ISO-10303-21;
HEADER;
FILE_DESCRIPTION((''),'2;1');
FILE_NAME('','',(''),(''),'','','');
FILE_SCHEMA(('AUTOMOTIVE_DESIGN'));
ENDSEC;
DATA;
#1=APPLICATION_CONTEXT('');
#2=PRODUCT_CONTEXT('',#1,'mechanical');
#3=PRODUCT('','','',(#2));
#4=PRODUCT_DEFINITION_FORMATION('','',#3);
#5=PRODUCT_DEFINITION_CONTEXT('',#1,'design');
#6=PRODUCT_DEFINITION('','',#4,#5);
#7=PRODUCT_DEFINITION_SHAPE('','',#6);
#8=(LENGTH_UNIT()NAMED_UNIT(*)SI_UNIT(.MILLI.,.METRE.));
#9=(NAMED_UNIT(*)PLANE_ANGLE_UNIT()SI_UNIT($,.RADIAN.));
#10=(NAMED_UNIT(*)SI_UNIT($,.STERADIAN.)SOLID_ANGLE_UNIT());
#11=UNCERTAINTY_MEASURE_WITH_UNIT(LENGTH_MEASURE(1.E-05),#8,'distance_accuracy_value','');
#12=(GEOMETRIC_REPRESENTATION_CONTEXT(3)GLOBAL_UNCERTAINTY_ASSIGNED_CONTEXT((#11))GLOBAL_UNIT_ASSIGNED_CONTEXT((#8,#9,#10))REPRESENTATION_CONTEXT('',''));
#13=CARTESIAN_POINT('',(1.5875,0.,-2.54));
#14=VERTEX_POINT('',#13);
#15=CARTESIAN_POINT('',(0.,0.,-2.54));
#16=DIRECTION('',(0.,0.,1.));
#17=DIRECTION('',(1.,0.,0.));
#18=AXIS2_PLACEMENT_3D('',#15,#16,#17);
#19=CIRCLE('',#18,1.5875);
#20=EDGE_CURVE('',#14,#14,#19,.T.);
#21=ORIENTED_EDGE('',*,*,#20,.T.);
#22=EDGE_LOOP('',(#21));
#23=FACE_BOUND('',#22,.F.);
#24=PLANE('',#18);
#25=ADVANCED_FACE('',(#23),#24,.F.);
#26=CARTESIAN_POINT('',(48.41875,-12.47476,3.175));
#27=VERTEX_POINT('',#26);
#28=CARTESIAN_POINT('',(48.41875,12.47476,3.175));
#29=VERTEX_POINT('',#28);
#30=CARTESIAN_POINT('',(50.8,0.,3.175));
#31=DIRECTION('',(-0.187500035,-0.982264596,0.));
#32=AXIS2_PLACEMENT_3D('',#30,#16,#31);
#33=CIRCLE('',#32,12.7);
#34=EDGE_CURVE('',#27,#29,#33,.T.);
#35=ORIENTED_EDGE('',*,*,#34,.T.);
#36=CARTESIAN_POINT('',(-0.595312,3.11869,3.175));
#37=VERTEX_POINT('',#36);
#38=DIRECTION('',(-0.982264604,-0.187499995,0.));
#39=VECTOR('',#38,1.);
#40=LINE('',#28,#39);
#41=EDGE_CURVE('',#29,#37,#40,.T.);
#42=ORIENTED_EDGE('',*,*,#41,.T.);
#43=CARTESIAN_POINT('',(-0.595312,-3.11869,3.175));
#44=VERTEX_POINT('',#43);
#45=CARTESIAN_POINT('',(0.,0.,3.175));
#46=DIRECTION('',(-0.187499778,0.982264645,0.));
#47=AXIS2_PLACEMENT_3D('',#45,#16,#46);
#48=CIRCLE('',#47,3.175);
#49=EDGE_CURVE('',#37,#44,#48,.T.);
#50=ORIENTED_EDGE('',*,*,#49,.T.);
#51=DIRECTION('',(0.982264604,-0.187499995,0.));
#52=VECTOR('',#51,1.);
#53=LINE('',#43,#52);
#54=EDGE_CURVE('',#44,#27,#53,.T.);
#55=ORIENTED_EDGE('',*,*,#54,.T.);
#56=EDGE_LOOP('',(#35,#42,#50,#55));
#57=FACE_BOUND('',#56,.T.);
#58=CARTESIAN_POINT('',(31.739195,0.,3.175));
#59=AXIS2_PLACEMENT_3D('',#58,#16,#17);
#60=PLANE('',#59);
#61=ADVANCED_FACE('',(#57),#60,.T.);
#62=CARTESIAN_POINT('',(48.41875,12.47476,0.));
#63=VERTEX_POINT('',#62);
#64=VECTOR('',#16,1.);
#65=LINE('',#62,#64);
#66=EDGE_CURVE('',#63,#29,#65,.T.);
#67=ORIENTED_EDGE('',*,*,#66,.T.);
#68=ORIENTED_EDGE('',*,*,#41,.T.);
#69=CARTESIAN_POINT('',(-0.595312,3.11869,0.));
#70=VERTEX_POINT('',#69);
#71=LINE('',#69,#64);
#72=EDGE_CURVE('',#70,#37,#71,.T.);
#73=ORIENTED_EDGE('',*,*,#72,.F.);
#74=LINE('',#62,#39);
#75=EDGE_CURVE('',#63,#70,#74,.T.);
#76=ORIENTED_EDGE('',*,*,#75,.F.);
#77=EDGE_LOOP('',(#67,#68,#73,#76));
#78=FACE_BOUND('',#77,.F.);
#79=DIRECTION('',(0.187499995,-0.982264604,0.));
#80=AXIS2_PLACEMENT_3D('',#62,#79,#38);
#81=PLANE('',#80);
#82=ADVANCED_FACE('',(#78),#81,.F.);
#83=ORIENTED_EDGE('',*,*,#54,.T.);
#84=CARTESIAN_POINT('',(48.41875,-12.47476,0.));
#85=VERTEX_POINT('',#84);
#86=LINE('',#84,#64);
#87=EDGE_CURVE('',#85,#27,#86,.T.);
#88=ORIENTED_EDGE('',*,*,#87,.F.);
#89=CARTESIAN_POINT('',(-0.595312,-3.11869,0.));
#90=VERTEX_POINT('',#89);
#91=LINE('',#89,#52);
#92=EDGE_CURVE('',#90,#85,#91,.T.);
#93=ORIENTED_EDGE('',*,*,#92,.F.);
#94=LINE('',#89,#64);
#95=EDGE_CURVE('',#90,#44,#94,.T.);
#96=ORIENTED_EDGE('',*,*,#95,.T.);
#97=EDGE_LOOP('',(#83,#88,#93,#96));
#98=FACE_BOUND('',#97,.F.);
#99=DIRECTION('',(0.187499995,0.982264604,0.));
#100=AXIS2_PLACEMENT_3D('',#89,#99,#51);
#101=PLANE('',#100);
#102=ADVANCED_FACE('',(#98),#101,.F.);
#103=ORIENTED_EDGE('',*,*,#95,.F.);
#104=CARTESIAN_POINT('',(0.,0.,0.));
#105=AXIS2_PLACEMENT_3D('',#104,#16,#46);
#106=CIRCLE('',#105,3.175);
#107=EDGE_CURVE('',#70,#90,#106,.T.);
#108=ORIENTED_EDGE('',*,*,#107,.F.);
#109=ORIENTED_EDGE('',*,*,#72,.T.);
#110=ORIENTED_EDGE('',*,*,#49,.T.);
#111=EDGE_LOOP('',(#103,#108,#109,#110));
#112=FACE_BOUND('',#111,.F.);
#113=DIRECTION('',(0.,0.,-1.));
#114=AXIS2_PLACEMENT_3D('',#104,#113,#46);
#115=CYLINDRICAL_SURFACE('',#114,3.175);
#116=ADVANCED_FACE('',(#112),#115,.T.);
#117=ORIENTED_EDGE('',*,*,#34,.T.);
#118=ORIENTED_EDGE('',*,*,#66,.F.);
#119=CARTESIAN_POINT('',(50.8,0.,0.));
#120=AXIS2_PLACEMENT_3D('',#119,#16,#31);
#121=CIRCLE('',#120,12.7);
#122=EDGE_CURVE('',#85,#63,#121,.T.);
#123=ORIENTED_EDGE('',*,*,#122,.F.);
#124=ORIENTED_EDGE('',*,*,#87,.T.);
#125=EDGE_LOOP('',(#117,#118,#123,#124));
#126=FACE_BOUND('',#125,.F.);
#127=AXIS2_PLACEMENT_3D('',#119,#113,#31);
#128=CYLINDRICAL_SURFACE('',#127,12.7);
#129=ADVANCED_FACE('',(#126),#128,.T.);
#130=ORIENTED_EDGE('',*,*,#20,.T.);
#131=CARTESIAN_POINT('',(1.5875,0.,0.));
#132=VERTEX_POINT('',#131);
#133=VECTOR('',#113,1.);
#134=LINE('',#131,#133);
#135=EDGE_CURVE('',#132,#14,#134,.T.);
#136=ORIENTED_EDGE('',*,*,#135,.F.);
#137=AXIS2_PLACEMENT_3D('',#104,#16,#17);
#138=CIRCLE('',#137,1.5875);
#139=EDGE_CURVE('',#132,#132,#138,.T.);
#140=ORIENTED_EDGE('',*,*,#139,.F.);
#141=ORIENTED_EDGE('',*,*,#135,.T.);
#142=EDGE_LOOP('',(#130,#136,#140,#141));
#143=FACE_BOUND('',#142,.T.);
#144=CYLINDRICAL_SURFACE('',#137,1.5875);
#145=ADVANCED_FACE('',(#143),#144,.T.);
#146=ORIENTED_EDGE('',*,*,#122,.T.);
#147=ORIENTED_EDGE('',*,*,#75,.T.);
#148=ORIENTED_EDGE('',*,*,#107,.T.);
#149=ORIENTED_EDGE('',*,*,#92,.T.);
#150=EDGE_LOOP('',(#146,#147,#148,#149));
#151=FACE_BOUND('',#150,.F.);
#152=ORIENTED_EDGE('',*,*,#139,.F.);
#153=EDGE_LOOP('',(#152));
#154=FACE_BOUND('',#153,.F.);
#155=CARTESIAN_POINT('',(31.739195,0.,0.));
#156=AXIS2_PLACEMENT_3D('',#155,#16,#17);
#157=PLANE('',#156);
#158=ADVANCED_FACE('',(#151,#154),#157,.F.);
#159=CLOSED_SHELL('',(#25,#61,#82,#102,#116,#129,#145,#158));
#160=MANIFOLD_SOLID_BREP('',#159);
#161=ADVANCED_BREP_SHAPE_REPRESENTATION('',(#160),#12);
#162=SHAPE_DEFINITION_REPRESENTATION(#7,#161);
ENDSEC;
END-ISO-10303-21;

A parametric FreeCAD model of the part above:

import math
import FreeCAD as App
import Part
import Sketcher
Q = App.Units.Quantity

doc = App.newDocument("Part")
body = doc.addObject("PartDesign::Body", "Body")

sketch1 = doc.addObject("Sketcher::SketchObject", "Sketch")
body.addObject(sketch1)
sketch1.AttachmentSupport = (doc.XY_Plane, [""])
sketch1.MapMode = "FlatFace"
sketch1.addGeometry([
    Part.LineSegment(App.Vector(48.4, 12.5, 0), App.Vector(-0.6, 3.1, 0)),
    Part.ArcOfCircle(Part.Circle(App.Vector(0, 0, 0), App.Vector(0, 0, 1), 3.2), math.radians(101), math.radians(259)),
    Part.LineSegment(App.Vector(-0.6, -3.1, 0), App.Vector(48.4, -12.5, 0)),
    Part.ArcOfCircle(Part.Circle(App.Vector(50.8, 0, 0), App.Vector(0, 0, 1), 12.7), math.radians(-101), math.radians(101)),
], False)
sketch1.addConstraint([
    Sketcher.Constraint("Tangent", 0, 2, 1, 1),
    Sketcher.Constraint("Tangent", 1, 2, 2, 1),
    Sketcher.Constraint("Tangent", 2, 2, 3, 1),
    Sketcher.Constraint("Tangent", 3, 2, 0, 1),
    Sketcher.Constraint("Coincident", 1, 3, -1, 1),
    Sketcher.Constraint("PointOnObject", 3, 3, -1),
    Sketcher.Constraint("Radius", 3, Q("0.5 in")),
    Sketcher.Constraint("DistanceX", -1, 1, 3, 3, Q("2 in")),
    Sketcher.Constraint("Radius", 1, Q("0.125 in")),
])
pad1 = doc.addObject("PartDesign::Pad", "Pad")
body.addObject(pad1)
pad1.Profile = sketch1
pad1.Length = Q("0.125 in")

sketch2 = doc.addObject("Sketcher::SketchObject", "Sketch001")
body.addObject(sketch2)
sketch2.AttachmentSupport = (doc.XY_Plane, [""])
sketch2.MapMode = "FlatFace"
sketch2.addGeometry(Part.Circle(App.Vector(0, 0, 0), App.Vector(0, 0, 1), 1.6), False)
sketch2.addConstraint([
    Sketcher.Constraint("Coincident", 0, 3, -1, 1),
    Sketcher.Constraint("Diameter", 0, Q("0.125 in")),
])
pad2 = doc.addObject("PartDesign::Pad", "Pad001")
body.addObject(pad2)
pad2.Profile = sketch2
pad2.Length = Q("0.1 in")
pad2.Reversed = True

doc.recompute()
